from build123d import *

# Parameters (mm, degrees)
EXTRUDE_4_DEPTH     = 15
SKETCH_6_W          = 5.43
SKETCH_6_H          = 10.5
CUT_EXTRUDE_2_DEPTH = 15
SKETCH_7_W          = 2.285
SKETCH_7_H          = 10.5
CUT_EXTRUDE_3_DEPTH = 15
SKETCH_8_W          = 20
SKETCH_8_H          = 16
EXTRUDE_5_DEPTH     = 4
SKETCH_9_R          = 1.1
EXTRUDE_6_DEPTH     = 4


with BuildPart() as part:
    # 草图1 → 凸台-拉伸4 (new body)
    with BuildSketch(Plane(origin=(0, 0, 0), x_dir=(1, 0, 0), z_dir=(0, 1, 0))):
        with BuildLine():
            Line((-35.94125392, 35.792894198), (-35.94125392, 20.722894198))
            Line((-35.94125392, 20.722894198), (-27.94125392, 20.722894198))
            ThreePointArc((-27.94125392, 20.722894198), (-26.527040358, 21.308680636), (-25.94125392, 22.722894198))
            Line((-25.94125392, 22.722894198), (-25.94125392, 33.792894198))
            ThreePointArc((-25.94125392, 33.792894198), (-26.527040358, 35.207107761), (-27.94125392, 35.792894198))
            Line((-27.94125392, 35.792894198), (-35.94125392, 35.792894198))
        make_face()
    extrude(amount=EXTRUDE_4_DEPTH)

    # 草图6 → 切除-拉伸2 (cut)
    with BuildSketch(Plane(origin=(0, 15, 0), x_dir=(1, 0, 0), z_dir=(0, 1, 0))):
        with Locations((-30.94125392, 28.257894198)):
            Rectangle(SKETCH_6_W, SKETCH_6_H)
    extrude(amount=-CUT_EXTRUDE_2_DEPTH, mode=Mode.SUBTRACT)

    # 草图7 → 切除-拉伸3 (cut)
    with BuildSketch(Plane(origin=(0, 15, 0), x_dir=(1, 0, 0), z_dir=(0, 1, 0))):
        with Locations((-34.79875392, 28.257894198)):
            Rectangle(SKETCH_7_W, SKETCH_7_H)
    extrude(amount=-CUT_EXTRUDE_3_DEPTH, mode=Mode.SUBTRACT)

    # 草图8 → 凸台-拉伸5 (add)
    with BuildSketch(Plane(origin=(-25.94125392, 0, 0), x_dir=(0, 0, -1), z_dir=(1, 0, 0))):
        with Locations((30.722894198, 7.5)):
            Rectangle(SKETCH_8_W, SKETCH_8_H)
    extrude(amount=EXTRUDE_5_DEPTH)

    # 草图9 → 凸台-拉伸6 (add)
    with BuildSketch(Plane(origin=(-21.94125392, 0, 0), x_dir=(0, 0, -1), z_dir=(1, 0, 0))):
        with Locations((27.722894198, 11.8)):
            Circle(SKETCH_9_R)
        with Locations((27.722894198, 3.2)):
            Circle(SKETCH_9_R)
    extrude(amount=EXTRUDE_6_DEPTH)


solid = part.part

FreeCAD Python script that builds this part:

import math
import FreeCAD as App
import Part
import Sketcher
Q = App.Units.Quantity

doc = App.newDocument("Part")
body = doc.addObject("PartDesign::Body", "Body")

# Sketch on XZ plane
sketch1 = doc.addObject("Sketcher::SketchObject", "Sketch")
body.addObject(sketch1)
sketch1.AttachmentSupport = (doc.XZ_Plane, [""])
sketch1.MapMode = "FlatFace"
sketch1.addGeometry(Part.LineSegment(App.Vector(-35.9, -35.8, 0), App.Vector(-35.9, -20.7, 0)), False)
sketch1.addGeometry(Part.LineSegment(App.Vector(-35.9, -20.7, 0), App.Vector(-27.9, -20.7, 0)), False)
sketch1.addGeometry(Part.ArcOfCircle(Part.Circle(App.Vector(-27.9, -22.7, 0), App.Vector(0, 0, 1), 2), math.radians(0), math.radians(90)), False)
sketch1.addGeometry(Part.LineSegment(App.Vector(-25.9, -22.7, 0), App.Vector(-25.9, -33.8, 0)), False)
sketch1.addGeometry(Part.ArcOfCircle(Part.Circle(App.Vector(-27.9, -33.8, 0), App.Vector(0, 0, 1), 2), math.radians(-90), math.radians(0)), False)
sketch1.addGeometry(Part.LineSegment(App.Vector(-27.9, -35.8, 0), App.Vector(-35.9, -35.8, 0)), False)
sketch1.addConstraint(Sketcher.Constraint("Coincident", 0, 2, 1, 1))
sketch1.addConstraint(Sketcher.Constraint("Tangent", 1, 2, 2, 2))
sketch1.addConstraint(Sketcher.Constraint("Tangent", 2, 1, 3, 1))
sketch1.addConstraint(Sketcher.Constraint("Tangent", 3, 2, 4, 2))
sketch1.addConstraint(Sketcher.Constraint("Tangent", 4, 1, 5, 1))
sketch1.addConstraint(Sketcher.Constraint("Coincident", 5, 2, 0, 1))
sketch1.addConstraint(Sketcher.Constraint("Vertical", 0))
sketch1.addConstraint(Sketcher.Constraint("Horizontal", 1))
sketch1.addConstraint(Sketcher.Constraint("Vertical", 3))
sketch1.addConstraint(Sketcher.Constraint("Horizontal", 5))
sketch1.addConstraint(Sketcher.Constraint("Equal", 2, 4))
sketch1.addConstraint(Sketcher.Constraint("Radius", 2, Q("2 mm")))
sketch1.addConstraint(Sketcher.Constraint("DistanceX", 1, 1, 1, 2, Q("8 mm")))
sketch1.addConstraint(Sketcher.Constraint("DistanceY", 0, 1, 0, 2, Q("15.07 mm")))
sketch1.addConstraint(Sketcher.Constraint("DistanceX", 2, 3, -1, 1, Q("27.941254 mm")))
sketch1.addConstraint(Sketcher.Constraint("DistanceY", 2, 3, -1, 1, Q("22.722894 mm")))
pad1 = doc.addObject("PartDesign::Pad", "Pad")
body.addObject(pad1)
pad1.Profile = sketch1
pad1.Length = 15
pad1.Reversed = True

# Sketch on XZ plane
sketch2 = doc.addObject("Sketcher::SketchObject", "Sketch001")
body.addObject(sketch2)
sketch2.AttachmentSupport = (doc.XZ_Plane, [""])
sketch2.MapMode = "FlatFace"
sketch2.AttachmentOffset = App.Placement(App.Vector(0, 0, -15), App.Rotation())
sketch2.addGeometry(Part.LineSegment(App.Vector(-34, -34, 0), App.Vector(-34, -23, 0)), False)
sketch2.addGeometry(Part.LineSegment(App.Vector(-34, -23, 0), App.Vector(-28, -23, 0)), False)
sketch2.addGeometry(Part.LineSegment(App.Vector(-28, -23, 0), App.Vector(-28, -34, 0)), False)
sketch2.addGeometry(Part.LineSegment(App.Vector(-28, -34, 0), App.Vector(-34, -34, 0)), False)
sketch2.addConstraint(Sketcher.Constraint("Coincident", 0, 2, 1, 1))
sketch2.addConstraint(Sketcher.Constraint("Coincident", 1, 2, 2, 1))
sketch2.addConstraint(Sketcher.Constraint("Coincident", 2, 2, 3, 1))
sketch2.addConstraint(Sketcher.Constraint("Coincident", 3, 2, 0, 1))
sketch2.addConstraint(Sketcher.Constraint("Vertical", 0))
sketch2.addConstraint(Sketcher.Constraint("Horizontal", 1))
sketch2.addConstraint(Sketcher.Constraint("Vertical", 2))
sketch2.addConstraint(Sketcher.Constraint("Horizontal", 3))
sketch2.addConstraint(Sketcher.Constraint("DistanceY", 0, 1, 0, 2, Q("10.5 mm")))
sketch2.addConstraint(Sketcher.Constraint("DistanceX", 1, 1, 1, 2, Q("5.43 mm")))
sketch2.addConstraint(Sketcher.Constraint("DistanceX", 0, 2, -1, 1, Q("33.656254 mm")))
sketch2.addConstraint(Sketcher.Constraint("DistanceY", 0, 2, -1, 1, Q("23.007894 mm")))
pocket1 = doc.addObject("PartDesign::Pocket", "Pocket")
body.addObject(pocket1)
pocket1.Profile = sketch2
pocket1.Length = 15
pocket1.Reversed = True

# Sketch on XZ plane
sketch3 = doc.addObject("Sketcher::SketchObject", "Sketch002")
body.addObject(sketch3)
sketch3.AttachmentSupport = (doc.XZ_Plane, [""])
sketch3.MapMode = "FlatFace"
sketch3.AttachmentOffset = App.Placement(App.Vector(0, 0, -15), App.Rotation())
sketch3.addGeometry(Part.LineSegment(App.Vector(-35.9, -33.5, 0), App.Vector(-35.9, -23, 0)), False)
sketch3.addGeometry(Part.LineSegment(App.Vector(-35.9, -23, 0), App.Vector(-33.7, -23, 0)), False)
sketch3.addGeometry(Part.LineSegment(App.Vector(-33.7, -23, 0), App.Vector(-33.7, -33.5, 0)), False)
sketch3.addGeometry(Part.LineSegment(App.Vector(-33.7, -33.5, 0), App.Vector(-35.9, -33.5, 0)), False)
sketch3.addConstraint(Sketcher.Constraint("Coincident", 0, 2, 1, 1))
sketch3.addConstraint(Sketcher.Constraint("Coincident", 1, 2, 2, 1))
sketch3.addConstraint(Sketcher.Constraint("Coincident", 2, 2, 3, 1))
sketch3.addConstraint(Sketcher.Constraint("Coincident", 3, 2, 0, 1))
sketch3.addConstraint(Sketcher.Constraint("Vertical", 0))
sketch3.addConstraint(Sketcher.Constraint("Horizontal", 1))
sketch3.addConstraint(Sketcher.Constraint("Vertical", 2))
sketch3.addConstraint(Sketcher.Constraint("Horizontal", 3))
sketch3.addConstraint(Sketcher.Constraint("DistanceY", 0, 1, 0, 2, Q("10.5 mm")))
sketch3.addConstraint(Sketcher.Constraint("DistanceX", 1, 1, 1, 2, Q("2.285 mm")))
sketch3.addConstraint(Sketcher.Constraint("DistanceX", 0, 2, -1, 1, Q("35.941254 mm")))
sketch3.addConstraint(Sketcher.Constraint("DistanceY", 0, 2, -1, 1, Q("23.007894 mm")))
pocket2 = doc.addObject("PartDesign::Pocket", "Pocket001")
body.addObject(pocket2)
pocket2.Profile = sketch3
pocket2.Length = 15
pocket2.Reversed = True

# Sketch on YZ plane
sketch4 = doc.addObject("Sketcher::SketchObject", "Sketch003")
body.addObject(sketch4)
sketch4.AttachmentSupport = (doc.YZ_Plane, [""])
sketch4.MapMode = "FlatFace"
sketch4.AttachmentOffset = App.Placement(App.Vector(0, 0, -25.941254), App.Rotation())
sketch4.addGeometry(Part.LineSegment(App.Vector(16, -21, 0), App.Vector(0, -21, 0)), False)
sketch4.addGeometry(Part.LineSegment(App.Vector(0, -21, 0), App.Vector(0, -41, 0)), False)
sketch4.addGeometry(Part.LineSegment(App.Vector(0, -41, 0), App.Vector(16, -41, 0)), False)
sketch4.addGeometry(Part.LineSegment(App.Vector(16, -41, 0), App.Vector(16, -21, 0)), False)
sketch4.addConstraint(Sketcher.Constraint("Coincident", 0, 2, 1, 1))
sketch4.addConstraint(Sketcher.Constraint("Coincident", 1, 2, 2, 1))
sketch4.addConstraint(Sketcher.Constraint("Coincident", 2, 2, 3, 1))
sketch4.addConstraint(Sketcher.Constraint("Coincident", 3, 2, 0, 1))
sketch4.addConstraint(Sketcher.Constraint("Horizontal", 0))
sketch4.addConstraint(Sketcher.Constraint("Vertical", 1))
sketch4.addConstraint(Sketcher.Constraint("Horizontal", 2))
sketch4.addConstraint(Sketcher.Constraint("Vertical", 3))
sketch4.addConstraint(Sketcher.Constraint("DistanceX", 0, 2, 0, 1, Q("16 mm")))
sketch4.addConstraint(Sketcher.Constraint("DistanceY", 1, 2, 1, 1, Q("20 mm")))
sketch4.addConstraint(Sketcher.Constraint("DistanceX", 0, 2, -1, 1, Q("0.5 mm")))
sketch4.addConstraint(Sketcher.Constraint("DistanceY", 0, 2, -1, 1, Q("20.722894 mm")))
pad2 = doc.addObject("PartDesign::Pad", "Pad001")
body.addObject(pad2)
pad2.Profile = sketch4
pad2.Length = 4

# Sketch on YZ plane
sketch5 = doc.addObject("Sketcher::SketchObject", "Sketch004")
body.addObject(sketch5)
sketch5.AttachmentSupport = (doc.YZ_Plane, [""])
sketch5.MapMode = "FlatFace"
sketch5.AttachmentOffset = App.Placement(App.Vector(0, 0, -21.941254), App.Rotation())
sketch5.addGeometry(Part.Circle(App.Vector(11.8, -27.7, 0), App.Vector(0, 0, 1), 1.1), False)
sketch5.addGeometry(Part.Circle(App.Vector(3.2, -27.7, 0), App.Vector(0, 0, 1), 1.1), False)
sketch5.addConstraint(Sketcher.Constraint("Equal", 0, 1))
sketch5.addConstraint(Sketcher.Constraint("Horizontal", 0, 3, 1, 3))
sketch5.addConstraint(Sketcher.Constraint("Diameter", 0, Q("2.2 mm")))
sketch5.addConstraint(Sketcher.Constraint("DistanceX", -1, 1, 0, 3, Q("11.8 mm")))
sketch5.addConstraint(Sketcher.Constraint("DistanceX", -1, 1, 1, 3, Q("3.2 mm")))
sketch5.addConstraint(Sketcher.Constraint("DistanceY", 0, 3, -1, 1, Q("27.722894 mm")))
pad3 = doc.addObject("PartDesign::Pad", "Pad002")
body.addObject(pad3)
pad3.Profile = sketch5
pad3.Length = 4

doc.recompute()
